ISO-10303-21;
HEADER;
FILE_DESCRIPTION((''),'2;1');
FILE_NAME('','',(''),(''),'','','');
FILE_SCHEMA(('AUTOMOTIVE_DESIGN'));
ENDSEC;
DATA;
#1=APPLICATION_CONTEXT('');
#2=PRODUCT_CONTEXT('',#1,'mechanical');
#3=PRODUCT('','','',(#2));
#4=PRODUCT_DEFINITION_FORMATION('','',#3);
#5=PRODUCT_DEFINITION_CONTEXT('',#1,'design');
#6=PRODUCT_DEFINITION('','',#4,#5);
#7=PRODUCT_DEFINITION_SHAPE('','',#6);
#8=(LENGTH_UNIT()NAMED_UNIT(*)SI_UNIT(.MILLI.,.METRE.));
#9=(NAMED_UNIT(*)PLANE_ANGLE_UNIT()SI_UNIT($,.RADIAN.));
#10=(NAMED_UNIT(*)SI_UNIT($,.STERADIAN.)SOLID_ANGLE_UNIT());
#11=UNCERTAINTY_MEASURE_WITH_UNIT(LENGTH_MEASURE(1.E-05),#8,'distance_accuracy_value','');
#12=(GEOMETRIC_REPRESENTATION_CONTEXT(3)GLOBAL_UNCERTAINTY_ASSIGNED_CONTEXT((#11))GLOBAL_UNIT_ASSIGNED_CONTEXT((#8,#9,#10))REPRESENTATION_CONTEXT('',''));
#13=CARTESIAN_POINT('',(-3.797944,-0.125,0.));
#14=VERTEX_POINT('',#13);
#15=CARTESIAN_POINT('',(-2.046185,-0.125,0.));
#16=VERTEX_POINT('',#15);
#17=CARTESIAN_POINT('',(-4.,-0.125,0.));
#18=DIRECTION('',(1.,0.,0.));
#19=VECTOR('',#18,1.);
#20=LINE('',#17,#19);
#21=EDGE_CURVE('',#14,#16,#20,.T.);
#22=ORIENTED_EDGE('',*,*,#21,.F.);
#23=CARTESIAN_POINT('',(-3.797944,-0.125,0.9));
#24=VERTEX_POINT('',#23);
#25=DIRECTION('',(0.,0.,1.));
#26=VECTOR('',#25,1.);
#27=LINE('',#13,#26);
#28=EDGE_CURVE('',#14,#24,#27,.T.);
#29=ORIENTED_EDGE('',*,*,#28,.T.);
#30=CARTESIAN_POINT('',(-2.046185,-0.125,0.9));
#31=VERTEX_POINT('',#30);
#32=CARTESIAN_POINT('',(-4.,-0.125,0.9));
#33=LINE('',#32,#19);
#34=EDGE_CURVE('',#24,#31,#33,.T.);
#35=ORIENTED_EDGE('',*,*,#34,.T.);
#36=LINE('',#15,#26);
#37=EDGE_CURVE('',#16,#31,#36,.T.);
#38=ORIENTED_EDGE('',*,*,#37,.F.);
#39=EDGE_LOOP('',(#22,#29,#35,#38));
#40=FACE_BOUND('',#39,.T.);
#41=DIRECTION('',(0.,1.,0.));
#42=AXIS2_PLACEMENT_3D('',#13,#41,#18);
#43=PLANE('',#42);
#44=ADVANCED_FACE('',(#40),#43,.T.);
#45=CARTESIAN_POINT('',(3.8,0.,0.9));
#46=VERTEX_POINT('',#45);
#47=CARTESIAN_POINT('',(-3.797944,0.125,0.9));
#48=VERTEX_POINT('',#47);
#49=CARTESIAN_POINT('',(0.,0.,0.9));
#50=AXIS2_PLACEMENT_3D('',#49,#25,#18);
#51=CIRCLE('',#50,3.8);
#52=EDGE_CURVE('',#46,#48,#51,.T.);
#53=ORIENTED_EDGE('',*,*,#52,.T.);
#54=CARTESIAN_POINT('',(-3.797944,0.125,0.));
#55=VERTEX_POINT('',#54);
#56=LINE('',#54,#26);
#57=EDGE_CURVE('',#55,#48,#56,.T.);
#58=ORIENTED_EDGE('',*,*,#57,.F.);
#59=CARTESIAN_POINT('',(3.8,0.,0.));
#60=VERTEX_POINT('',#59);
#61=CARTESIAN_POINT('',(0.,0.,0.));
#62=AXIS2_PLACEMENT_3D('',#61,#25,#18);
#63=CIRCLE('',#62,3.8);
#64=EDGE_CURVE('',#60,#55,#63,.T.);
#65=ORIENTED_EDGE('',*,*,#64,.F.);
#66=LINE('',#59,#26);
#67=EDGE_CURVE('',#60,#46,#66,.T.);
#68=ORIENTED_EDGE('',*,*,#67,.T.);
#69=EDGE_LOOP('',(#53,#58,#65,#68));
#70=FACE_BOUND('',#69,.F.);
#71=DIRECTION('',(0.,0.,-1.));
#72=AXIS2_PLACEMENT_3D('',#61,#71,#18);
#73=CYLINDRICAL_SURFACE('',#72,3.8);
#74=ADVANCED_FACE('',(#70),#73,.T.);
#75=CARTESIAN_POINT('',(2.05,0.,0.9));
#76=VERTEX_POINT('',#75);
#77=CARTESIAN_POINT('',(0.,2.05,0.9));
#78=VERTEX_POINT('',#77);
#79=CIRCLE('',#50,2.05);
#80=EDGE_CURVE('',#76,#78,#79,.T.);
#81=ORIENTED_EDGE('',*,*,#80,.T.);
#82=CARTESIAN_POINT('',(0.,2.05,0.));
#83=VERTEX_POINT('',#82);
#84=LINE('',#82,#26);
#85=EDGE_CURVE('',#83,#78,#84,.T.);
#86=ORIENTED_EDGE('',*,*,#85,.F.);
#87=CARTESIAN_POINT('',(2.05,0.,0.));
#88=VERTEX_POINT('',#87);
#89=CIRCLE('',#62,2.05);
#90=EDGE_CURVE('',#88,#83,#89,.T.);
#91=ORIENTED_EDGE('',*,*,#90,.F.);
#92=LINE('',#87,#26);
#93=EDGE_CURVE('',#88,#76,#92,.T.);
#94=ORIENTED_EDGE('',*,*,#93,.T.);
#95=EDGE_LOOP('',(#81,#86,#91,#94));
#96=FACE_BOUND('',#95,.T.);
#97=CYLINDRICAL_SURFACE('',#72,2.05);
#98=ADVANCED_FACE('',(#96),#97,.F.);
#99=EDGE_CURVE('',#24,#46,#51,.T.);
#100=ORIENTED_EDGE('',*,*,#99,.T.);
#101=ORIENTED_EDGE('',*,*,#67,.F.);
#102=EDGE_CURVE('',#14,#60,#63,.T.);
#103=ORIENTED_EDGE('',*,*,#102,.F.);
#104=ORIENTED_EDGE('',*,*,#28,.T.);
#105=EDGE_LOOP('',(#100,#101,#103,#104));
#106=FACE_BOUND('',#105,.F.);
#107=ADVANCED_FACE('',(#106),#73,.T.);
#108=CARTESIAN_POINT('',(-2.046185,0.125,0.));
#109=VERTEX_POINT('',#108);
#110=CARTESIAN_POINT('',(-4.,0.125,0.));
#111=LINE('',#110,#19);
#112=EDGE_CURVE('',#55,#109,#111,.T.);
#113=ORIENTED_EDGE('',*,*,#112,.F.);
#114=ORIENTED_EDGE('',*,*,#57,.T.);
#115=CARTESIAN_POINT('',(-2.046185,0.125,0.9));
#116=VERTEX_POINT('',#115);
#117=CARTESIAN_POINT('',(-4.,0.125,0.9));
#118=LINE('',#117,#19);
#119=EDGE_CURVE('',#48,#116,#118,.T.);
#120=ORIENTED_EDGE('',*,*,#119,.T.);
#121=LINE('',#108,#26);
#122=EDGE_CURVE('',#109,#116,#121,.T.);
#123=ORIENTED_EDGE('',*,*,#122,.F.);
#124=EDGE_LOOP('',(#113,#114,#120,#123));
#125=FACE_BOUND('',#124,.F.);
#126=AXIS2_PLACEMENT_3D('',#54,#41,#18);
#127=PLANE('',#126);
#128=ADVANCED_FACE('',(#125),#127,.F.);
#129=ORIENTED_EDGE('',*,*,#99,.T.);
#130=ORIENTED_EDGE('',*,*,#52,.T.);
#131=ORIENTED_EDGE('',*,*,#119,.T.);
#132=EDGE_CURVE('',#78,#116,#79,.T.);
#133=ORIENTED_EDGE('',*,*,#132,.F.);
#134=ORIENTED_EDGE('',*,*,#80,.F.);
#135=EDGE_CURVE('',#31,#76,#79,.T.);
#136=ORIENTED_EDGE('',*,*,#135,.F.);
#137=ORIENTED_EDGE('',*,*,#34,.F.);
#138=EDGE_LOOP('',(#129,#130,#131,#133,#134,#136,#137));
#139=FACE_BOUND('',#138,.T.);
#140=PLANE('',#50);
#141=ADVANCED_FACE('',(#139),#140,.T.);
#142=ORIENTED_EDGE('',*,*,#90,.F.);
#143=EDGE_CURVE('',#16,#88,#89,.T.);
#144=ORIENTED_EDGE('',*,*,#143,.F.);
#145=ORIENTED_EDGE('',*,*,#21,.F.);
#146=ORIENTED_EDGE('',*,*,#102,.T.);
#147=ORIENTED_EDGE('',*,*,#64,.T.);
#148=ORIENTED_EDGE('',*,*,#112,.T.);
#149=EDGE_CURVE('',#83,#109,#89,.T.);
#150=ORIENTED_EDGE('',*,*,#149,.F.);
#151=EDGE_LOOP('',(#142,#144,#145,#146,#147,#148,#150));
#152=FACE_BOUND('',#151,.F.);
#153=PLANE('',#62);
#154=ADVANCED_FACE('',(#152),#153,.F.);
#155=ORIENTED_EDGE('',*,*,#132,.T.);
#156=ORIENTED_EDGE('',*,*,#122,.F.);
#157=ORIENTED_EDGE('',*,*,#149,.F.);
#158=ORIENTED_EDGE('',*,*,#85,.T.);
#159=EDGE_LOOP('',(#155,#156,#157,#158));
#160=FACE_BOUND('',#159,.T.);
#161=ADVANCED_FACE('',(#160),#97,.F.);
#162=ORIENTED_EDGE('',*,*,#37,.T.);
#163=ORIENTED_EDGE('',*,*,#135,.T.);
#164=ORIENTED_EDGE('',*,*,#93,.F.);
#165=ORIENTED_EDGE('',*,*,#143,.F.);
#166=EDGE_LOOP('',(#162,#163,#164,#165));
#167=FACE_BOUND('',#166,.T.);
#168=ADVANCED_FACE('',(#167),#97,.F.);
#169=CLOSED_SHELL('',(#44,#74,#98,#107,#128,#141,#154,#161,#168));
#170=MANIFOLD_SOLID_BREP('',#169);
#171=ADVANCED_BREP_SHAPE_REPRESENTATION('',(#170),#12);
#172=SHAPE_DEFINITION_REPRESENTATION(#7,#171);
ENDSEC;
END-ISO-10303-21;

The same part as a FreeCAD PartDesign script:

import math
import FreeCAD as App
import Part
import Sketcher
from FreeCAD import Vector
Q = App.Units.Quantity

doc = App.newDocument("Part")
body = doc.addObject("PartDesign::Body", "Body")

# Sketch on XY plane
sketch1 = body.newObject("Sketcher::SketchObject", "Sketch")
sketch1.AttachmentSupport = (doc.getObject("XY_Plane"), [""])
sketch1.MapMode = "FlatFace"
sketch1.addGeometry([
    Part.ArcOfCircle(Part.Circle(Vector(0, 0, 0), Vector(0, 0, 1), 2.05), math.radians(-177), math.radians(177)),
    Part.LineSegment(Vector(-2.05, -0.12, 0), Vector(-3.8, -0.12, 0)),
    Part.ArcOfCircle(Part.Circle(Vector(0, 0, 0), Vector(0, 0, 1), 3.8), math.radians(-178), math.radians(178)),
    Part.LineSegment(Vector(-3.8, 0.12, 0), Vector(-2.05, 0.12, 0)),
], False)
sketch1.addConstraint([
    Sketcher.Constraint("Coincident", 0, 1, 1, 1),
    Sketcher.Constraint("Coincident", 1, 2, 2, 1),
    Sketcher.Constraint("Coincident", 2, 2, 3, 1),
    Sketcher.Constraint("Coincident", 3, 2, 0, 2),
    Sketcher.Constraint("Horizontal", 1),
    Sketcher.Constraint("Horizontal", 3),
    Sketcher.Constraint("Coincident", 0, 3, -1, 1),
    Sketcher.Constraint("Coincident", 2, 3, -1, 1),
    Sketcher.Constraint("Vertical", 1, 2, 2, 2),
    Sketcher.Constraint("Radius", 2, Q("3.8 mm")),
    Sketcher.Constraint("Radius", 0, Q("2.05 mm")),
    Sketcher.Constraint("DistanceY", 0, 1, -1, 1, Q("0.125 mm")),
])
pad1 = body.newObject("PartDesign::Pad", "Pad")
pad1.Profile = sketch1
pad1.Length = 0.9

doc.recompute()
